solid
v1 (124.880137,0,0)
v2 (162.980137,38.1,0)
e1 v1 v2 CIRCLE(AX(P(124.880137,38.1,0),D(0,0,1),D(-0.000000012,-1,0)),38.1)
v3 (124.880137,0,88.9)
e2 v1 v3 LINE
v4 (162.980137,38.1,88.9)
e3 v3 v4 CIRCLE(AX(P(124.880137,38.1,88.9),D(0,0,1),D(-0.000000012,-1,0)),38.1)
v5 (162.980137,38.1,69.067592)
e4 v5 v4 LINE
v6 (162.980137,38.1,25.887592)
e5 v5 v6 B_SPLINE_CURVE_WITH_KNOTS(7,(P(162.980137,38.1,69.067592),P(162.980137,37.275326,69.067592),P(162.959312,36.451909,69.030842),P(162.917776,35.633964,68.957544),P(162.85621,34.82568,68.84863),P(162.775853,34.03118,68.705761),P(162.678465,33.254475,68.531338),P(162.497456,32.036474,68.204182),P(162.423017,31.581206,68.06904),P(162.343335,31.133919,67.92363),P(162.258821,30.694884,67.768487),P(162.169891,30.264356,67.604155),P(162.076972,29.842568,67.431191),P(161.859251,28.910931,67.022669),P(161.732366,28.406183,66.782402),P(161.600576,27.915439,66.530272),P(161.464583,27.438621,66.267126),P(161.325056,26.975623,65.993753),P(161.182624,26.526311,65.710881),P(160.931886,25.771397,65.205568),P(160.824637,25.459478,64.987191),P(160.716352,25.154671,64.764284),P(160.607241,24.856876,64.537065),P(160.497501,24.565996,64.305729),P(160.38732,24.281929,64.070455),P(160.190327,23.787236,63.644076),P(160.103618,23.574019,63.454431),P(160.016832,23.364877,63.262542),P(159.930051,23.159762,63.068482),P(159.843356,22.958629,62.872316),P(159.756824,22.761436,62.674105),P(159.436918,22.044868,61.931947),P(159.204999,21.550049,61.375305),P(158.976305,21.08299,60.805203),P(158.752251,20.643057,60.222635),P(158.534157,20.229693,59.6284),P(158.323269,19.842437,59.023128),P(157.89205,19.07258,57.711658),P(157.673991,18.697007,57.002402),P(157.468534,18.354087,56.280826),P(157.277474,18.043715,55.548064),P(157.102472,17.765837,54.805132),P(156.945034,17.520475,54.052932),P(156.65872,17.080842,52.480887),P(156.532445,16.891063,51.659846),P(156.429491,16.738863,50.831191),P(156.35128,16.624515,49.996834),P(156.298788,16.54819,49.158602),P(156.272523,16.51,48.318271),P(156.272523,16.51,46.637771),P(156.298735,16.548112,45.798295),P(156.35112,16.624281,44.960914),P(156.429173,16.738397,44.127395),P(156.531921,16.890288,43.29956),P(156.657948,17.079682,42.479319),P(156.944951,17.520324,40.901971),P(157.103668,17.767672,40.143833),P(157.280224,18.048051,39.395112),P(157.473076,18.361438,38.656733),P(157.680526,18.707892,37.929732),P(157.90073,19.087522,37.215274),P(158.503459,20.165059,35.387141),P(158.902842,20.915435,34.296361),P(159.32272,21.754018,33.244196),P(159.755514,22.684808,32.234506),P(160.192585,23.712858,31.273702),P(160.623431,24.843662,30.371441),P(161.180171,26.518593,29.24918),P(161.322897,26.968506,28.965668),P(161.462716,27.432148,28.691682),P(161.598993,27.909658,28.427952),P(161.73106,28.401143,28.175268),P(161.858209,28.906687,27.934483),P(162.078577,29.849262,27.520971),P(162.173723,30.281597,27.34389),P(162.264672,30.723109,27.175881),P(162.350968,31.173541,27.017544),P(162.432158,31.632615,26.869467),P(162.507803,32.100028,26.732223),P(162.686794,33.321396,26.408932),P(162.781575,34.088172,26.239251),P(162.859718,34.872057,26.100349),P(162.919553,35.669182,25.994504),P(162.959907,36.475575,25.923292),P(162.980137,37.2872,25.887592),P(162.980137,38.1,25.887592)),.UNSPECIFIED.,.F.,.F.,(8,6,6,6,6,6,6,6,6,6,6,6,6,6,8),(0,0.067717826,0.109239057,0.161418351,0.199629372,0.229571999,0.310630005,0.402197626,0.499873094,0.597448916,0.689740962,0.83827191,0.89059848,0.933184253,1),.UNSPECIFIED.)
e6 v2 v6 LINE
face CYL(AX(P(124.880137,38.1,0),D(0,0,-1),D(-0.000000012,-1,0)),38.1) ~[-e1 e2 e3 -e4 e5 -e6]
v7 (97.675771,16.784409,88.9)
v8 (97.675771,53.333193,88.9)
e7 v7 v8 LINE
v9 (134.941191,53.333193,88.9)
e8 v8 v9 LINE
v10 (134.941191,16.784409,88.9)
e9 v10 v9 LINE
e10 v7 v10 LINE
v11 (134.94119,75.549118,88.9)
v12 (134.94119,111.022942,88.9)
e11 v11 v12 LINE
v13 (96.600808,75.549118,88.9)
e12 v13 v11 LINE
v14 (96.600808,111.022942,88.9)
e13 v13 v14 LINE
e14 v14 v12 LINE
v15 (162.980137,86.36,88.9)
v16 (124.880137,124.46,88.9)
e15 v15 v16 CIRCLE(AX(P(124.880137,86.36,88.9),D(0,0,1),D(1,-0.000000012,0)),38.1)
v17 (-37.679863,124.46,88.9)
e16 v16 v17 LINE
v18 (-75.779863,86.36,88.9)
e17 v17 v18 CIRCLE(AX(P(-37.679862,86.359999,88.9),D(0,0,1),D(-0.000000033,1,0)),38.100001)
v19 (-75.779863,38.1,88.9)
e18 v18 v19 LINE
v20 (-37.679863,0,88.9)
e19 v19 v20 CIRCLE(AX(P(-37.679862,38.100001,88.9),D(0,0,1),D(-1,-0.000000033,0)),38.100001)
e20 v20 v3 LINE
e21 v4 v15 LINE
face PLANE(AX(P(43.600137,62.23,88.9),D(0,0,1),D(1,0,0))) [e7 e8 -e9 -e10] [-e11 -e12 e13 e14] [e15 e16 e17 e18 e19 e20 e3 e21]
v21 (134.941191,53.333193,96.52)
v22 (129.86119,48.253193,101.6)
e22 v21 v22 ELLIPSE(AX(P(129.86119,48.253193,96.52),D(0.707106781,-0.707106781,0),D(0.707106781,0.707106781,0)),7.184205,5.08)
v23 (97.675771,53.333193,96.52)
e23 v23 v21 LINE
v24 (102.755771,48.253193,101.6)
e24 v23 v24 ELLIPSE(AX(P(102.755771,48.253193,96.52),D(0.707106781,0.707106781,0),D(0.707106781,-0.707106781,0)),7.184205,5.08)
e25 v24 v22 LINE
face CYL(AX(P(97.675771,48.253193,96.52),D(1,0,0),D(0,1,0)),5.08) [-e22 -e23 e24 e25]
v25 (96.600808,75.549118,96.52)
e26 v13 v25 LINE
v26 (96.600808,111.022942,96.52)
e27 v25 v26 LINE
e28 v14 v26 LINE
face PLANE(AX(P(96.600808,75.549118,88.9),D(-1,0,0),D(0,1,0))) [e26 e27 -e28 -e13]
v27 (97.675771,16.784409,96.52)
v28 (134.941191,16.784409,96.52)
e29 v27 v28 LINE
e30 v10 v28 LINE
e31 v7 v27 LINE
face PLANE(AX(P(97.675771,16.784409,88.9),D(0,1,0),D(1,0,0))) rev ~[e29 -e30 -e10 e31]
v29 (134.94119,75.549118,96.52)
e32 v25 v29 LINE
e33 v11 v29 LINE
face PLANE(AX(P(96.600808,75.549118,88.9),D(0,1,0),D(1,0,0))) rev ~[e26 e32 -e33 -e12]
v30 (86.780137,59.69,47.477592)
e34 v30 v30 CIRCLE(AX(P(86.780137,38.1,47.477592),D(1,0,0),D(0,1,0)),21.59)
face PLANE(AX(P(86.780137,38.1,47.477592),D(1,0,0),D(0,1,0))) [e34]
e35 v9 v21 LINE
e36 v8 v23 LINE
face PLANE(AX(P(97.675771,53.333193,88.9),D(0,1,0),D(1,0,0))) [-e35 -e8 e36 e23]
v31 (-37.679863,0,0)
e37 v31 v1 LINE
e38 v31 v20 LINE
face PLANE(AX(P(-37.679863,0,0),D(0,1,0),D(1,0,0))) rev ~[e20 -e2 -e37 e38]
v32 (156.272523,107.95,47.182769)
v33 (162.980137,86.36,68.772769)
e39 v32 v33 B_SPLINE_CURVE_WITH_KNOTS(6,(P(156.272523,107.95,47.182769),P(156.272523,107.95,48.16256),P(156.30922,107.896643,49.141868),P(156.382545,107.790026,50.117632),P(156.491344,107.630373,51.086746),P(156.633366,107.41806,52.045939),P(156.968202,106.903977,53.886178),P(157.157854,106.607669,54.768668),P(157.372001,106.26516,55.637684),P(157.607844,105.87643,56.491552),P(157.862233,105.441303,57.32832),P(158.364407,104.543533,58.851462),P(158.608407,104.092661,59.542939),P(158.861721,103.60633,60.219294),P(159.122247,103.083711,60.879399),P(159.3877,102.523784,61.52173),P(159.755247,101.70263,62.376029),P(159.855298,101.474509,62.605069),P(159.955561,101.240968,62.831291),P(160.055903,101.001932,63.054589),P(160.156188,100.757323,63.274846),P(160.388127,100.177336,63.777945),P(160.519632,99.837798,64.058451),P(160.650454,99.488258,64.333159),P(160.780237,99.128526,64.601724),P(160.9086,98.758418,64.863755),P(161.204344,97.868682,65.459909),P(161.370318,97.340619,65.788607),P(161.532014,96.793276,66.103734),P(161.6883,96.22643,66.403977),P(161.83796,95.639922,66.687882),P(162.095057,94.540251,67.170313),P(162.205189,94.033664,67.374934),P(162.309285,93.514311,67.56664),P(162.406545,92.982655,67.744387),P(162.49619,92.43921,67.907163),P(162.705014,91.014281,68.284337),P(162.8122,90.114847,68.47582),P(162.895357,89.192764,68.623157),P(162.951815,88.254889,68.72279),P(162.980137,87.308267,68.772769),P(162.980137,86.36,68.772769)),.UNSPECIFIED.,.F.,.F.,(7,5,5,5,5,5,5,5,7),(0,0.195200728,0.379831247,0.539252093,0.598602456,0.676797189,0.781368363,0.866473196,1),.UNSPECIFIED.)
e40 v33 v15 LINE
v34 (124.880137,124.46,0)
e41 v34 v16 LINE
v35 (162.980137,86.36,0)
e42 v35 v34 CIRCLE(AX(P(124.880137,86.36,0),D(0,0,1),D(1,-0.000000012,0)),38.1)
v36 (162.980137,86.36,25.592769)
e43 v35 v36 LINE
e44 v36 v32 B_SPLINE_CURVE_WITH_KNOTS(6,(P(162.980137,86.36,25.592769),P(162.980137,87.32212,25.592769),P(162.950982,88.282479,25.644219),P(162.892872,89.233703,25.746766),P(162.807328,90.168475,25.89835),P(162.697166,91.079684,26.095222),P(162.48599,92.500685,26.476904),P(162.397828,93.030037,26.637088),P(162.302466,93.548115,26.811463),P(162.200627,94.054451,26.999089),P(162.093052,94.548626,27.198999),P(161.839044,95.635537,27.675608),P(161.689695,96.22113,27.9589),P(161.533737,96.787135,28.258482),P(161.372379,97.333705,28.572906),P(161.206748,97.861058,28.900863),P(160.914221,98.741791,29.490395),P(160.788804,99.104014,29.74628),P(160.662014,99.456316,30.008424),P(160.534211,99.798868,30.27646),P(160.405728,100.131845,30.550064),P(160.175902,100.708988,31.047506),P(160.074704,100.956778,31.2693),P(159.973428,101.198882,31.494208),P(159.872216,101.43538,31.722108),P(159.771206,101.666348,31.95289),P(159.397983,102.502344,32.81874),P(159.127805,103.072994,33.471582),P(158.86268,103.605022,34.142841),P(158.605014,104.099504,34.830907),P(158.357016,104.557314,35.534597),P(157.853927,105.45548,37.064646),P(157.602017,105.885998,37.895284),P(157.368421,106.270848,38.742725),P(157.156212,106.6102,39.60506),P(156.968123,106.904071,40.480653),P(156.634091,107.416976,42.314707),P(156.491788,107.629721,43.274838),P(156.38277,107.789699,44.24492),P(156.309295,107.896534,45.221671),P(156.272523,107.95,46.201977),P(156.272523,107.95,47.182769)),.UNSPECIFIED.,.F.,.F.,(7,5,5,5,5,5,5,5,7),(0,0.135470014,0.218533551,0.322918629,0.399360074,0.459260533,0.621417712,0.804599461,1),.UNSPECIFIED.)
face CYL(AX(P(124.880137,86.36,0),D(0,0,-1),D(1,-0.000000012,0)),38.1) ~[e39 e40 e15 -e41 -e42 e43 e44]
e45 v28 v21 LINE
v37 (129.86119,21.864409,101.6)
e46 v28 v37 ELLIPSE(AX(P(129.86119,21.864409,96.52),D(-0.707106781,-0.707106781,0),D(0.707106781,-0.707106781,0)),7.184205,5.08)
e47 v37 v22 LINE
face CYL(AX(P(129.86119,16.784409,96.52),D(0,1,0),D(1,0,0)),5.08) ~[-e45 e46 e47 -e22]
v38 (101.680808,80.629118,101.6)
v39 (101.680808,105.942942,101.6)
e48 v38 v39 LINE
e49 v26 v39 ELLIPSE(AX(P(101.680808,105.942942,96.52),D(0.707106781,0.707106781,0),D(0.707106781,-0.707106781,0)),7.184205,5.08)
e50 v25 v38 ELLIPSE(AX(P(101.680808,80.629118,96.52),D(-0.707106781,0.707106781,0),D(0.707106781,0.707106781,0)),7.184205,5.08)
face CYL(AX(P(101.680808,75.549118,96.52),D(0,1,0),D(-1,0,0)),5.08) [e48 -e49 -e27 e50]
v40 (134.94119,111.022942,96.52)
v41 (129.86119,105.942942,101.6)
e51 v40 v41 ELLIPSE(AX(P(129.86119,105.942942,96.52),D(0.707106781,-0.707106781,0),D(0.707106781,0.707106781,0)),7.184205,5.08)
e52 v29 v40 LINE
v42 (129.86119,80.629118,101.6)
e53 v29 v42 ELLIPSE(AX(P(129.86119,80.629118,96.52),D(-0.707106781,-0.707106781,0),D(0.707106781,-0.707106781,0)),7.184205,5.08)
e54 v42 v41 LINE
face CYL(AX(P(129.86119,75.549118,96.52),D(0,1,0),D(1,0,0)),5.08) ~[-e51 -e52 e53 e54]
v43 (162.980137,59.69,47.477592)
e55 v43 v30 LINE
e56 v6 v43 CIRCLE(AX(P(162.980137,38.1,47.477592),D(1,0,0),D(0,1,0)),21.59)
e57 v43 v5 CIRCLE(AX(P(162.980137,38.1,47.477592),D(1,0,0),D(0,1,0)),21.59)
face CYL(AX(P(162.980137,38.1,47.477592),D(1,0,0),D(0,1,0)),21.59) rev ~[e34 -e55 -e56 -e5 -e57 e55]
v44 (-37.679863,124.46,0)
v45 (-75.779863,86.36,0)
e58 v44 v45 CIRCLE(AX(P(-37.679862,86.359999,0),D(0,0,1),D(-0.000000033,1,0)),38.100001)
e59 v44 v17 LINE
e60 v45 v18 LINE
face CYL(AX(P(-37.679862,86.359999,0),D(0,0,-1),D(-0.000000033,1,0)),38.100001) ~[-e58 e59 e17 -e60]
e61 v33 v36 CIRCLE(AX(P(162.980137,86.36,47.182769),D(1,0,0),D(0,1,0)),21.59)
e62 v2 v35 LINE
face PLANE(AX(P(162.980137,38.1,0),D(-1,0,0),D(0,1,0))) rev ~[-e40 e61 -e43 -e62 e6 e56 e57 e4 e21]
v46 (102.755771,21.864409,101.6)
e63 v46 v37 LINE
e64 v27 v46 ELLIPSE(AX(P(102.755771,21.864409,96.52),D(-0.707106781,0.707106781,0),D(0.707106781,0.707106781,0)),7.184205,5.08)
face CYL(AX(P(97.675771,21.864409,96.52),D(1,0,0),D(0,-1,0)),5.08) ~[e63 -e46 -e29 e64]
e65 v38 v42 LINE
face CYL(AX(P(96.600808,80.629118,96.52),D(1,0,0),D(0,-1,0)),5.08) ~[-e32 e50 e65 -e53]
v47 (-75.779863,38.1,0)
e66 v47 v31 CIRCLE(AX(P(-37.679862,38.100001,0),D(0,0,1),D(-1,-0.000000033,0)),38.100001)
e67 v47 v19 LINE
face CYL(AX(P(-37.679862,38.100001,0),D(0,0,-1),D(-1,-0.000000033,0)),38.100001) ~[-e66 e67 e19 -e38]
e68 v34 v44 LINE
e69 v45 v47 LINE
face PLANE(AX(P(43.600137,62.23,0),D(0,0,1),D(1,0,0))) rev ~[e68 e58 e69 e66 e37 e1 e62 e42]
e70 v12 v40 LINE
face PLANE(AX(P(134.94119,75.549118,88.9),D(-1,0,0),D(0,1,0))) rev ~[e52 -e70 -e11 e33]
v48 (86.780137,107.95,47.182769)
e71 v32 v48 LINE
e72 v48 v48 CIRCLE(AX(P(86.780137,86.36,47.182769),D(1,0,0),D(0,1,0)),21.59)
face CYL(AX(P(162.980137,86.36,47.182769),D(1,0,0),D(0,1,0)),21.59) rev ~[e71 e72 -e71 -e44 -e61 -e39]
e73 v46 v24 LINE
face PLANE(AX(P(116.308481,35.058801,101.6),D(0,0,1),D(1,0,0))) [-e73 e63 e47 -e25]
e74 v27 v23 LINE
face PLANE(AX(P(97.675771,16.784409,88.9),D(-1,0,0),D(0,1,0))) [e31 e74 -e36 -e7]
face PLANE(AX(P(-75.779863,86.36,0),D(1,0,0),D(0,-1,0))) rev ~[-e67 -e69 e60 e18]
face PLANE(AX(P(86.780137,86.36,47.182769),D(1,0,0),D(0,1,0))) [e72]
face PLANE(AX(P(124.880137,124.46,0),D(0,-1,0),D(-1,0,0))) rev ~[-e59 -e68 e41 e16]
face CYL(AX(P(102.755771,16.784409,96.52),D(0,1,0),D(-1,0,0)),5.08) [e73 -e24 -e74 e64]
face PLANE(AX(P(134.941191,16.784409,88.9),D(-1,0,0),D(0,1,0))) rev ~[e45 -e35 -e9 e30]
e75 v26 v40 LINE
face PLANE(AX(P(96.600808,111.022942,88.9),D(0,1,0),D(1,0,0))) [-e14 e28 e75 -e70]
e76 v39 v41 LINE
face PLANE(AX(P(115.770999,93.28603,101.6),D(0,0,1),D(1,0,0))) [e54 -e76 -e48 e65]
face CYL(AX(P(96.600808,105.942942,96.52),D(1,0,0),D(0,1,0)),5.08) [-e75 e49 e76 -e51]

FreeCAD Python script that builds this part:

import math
import FreeCAD as App
import Part
import Sketcher
from FreeCAD import Vector
Q = App.Units.Quantity


def edges_at(feature, points):
    """Names of the edges that pass closest to the given points."""
    edges = feature.Shape.Edges
    near = lambda p: min(range(len(edges)), key=lambda i: edges[i].distToShape(Part.Vertex(*p))[0])
    return sorted({f"Edge{near(p) + 1}" for p in points})

doc = App.newDocument("Part")
body = doc.addObject("PartDesign::Body", "Body")

sketch1 = body.newObject("Sketcher::SketchObject", "Sketch")
sketch1.AttachmentSupport = (doc.getObject("XY_Plane"), [""])
sketch1.MapMode = "FlatFace"
sketch1.addGeometry(Part.ArcOfCircle(Part.Circle(Vector(-38, 38, 0), Vector(0, 0, 1), 38), math.radians(-180), math.radians(-90)), False)
sketch1.addGeometry(Part.LineSegment(Vector(-38, 0, 0), Vector(125, 0, 0)), False)
sketch1.addGeometry(Part.ArcOfCircle(Part.Circle(Vector(125, 38, 0), Vector(0, 0, 1), 38), math.radians(-90), math.radians(0)), False)
sketch1.addGeometry(Part.LineSegment(Vector(163, 38, 0), Vector(163, 86, 0)), False)
sketch1.addGeometry(Part.ArcOfCircle(Part.Circle(Vector(125, 86, 0), Vector(0, 0, 1), 38), math.radians(0), math.radians(90)), False)
sketch1.addGeometry(Part.LineSegment(Vector(125, 124, 0), Vector(-38, 124, 0)), False)
sketch1.addGeometry(Part.ArcOfCircle(Part.Circle(Vector(-38, 86, 0), Vector(0, 0, 1), 38), math.radians(90), math.radians(180)), False)
sketch1.addGeometry(Part.LineSegment(Vector(-76, 86, 0), Vector(-76, 38, 0)), False)
sketch1.addConstraint(Sketcher.Constraint("Tangent", 0, 2, 1, 1))
sketch1.addConstraint(Sketcher.Constraint("Tangent", 1, 2, 2, 1))
sketch1.addConstraint(Sketcher.Constraint("Tangent", 2, 2, 3, 1))
sketch1.addConstraint(Sketcher.Constraint("Tangent", 3, 2, 4, 1))
sketch1.addConstraint(Sketcher.Constraint("Tangent", 4, 2, 5, 1))
sketch1.addConstraint(Sketcher.Constraint("Tangent", 5, 2, 6, 1))
sketch1.addConstraint(Sketcher.Constraint("Tangent", 6, 2, 7, 1))
sketch1.addConstraint(Sketcher.Constraint("Tangent", 7, 2, 0, 1))
sketch1.addConstraint(Sketcher.Constraint("Horizontal", 1))
sketch1.addConstraint(Sketcher.Constraint("Vertical", 3))
sketch1.addConstraint(Sketcher.Constraint("Horizontal", 5))
sketch1.addConstraint(Sketcher.Constraint("Vertical", 7))
sketch1.addConstraint(Sketcher.Constraint("Equal", 0, 2))
sketch1.addConstraint(Sketcher.Constraint("Equal", 2, 4))
sketch1.addConstraint(Sketcher.Constraint("Equal", 4, 6))
sketch1.addConstraint(Sketcher.Constraint("PointOnObject", 0, 2, -1))
sketch1.addConstraint(Sketcher.Constraint("Radius", 0, Q("1.5 in")))
sketch1.addConstraint(Sketcher.Constraint("DistanceX", 1, 1, 1, 2, Q("6.4 in")))
sketch1.addConstraint(Sketcher.Constraint("DistanceY", 3, 1, 3, 2, Q("1.9 in")))
sketch1.addConstraint(Sketcher.Constraint("DistanceX", 0, 3, -1, 1, Q("37.679862 mm")))
pad1 = body.newObject("PartDesign::Pad", "Pad")
pad1.Profile = sketch1
pad1.Length = Q("3.5 in")

sketch2 = body.newObject("Sketcher::SketchObject", "Sketch001")
sketch2.AttachmentSupport = (doc.getObject("YZ_Plane"), [""])
sketch2.MapMode = "FlatFace"
sketch2.AttachmentOffset = App.Placement(Vector(0, 0, 162.980137), App.Rotation())
sketch2.addGeometry(Part.Circle(Vector(38, 47, 0), Vector(0, 0, 1), 22), False)
sketch2.addGeometry(Part.Circle(Vector(86, 47, 0), Vector(0, 0, 1), 22), False)
sketch2.addConstraint(Sketcher.Constraint("Equal", 0, 1))
sketch2.addConstraint(Sketcher.Constraint("Diameter", 0, Q("1.7 in")))
sketch2.addConstraint(Sketcher.Constraint("DistanceX", -1, 1, 0, 3, Q("1.5 in")))
sketch2.addConstraint(Sketcher.Constraint("DistanceX", -1, 1, 1, 3, Q("3.4 in")))
sketch2.addConstraint(Sketcher.Constraint("DistanceY", -1, 1, 1, 3, Q("47.182769 mm")))
sketch2.addConstraint(Sketcher.Constraint("DistanceY", -1, 1, 0, 3, Q("47.477592 mm")))
pocket1 = body.newObject("PartDesign::Pocket", "Pocket")
pocket1.Profile = sketch2
pocket1.Length = Q("3 in")

sketch3 = body.newObject("Sketcher::SketchObject", "Sketch002")
sketch3.AttachmentSupport = (doc.getObject("XY_Plane"), [""])
sketch3.MapMode = "FlatFace"
sketch3.AttachmentOffset = App.Placement(Vector(0, 0, 3.5 * 25.4), App.Rotation())
sketch3.addGeometry(Part.LineSegment(Vector(97, 111, 0), Vector(97, 76, 0)), False)
sketch3.addGeometry(Part.LineSegment(Vector(97, 76, 0), Vector(135, 76, 0)), False)
sketch3.addGeometry(Part.LineSegment(Vector(135, 76, 0), Vector(135, 111, 0)), False)
sketch3.addGeometry(Part.LineSegment(Vector(135, 111, 0), Vector(97, 111, 0)), False)
sketch3.addGeometry(Part.LineSegment(Vector(98, 53, 0), Vector(98, 17, 0)), False)
sketch3.addGeometry(Part.LineSegment(Vector(98, 17, 0), Vector(135, 17, 0)), False)
sketch3.addGeometry(Part.LineSegment(Vector(135, 17, 0), Vector(135, 53, 0)), False)
sketch3.addGeometry(Part.LineSegment(Vector(135, 53, 0), Vector(98, 53, 0)), False)
sketch3.addConstraint(Sketcher.Constraint("Coincident", 0, 2, 1, 1))
sketch3.addConstraint(Sketcher.Constraint("Coincident", 1, 2, 2, 1))
sketch3.addConstraint(Sketcher.Constraint("Coincident", 2, 2, 3, 1))
sketch3.addConstraint(Sketcher.Constraint("Coincident", 3, 2, 0, 1))
sketch3.addConstraint(Sketcher.Constraint("Coincident", 4, 2, 5, 1))
sketch3.addConstraint(Sketcher.Constraint("Coincident", 5, 2, 6, 1))
sketch3.addConstraint(Sketcher.Constraint("Coincident", 6, 2, 7, 1))
sketch3.addConstraint(Sketcher.Constraint("Coincident", 7, 2, 4, 1))
sketch3.addConstraint(Sketcher.Constraint("Vertical", 0))
sketch3.addConstraint(Sketcher.Constraint("Horizontal", 1))
sketch3.addConstraint(Sketcher.Constraint("Vertical", 2))
sketch3.addConstraint(Sketcher.Constraint("Horizontal", 3))
sketch3.addConstraint(Sketcher.Constraint("Vertical", 4))
sketch3.addConstraint(Sketcher.Constraint("Horizontal", 5))
sketch3.addConstraint(Sketcher.Constraint("Vertical", 6))
sketch3.addConstraint(Sketcher.Constraint("Horizontal", 7))
sketch3.addConstraint(Sketcher.Constraint("Vertical", 2, 2, 5, 2))
sketch3.addConstraint(Sketcher.Constraint("DistanceX", 5, 1, 5, 2, Q("37.265419 mm")))
sketch3.addConstraint(Sketcher.Constraint("DistanceX", 1, 1, 1, 2, Q("38.340382 mm")))
sketch3.addConstraint(Sketcher.Constraint("DistanceY", 0, 2, 0, 1, Q("35.473824 mm")))
sketch3.addConstraint(Sketcher.Constraint("DistanceY", 4, 2, 4, 1, Q("36.548784 mm")))
sketch3.addConstraint(Sketcher.Constraint("DistanceX", -1, 1, 0, 2, Q("96.600808 mm")))
sketch3.addConstraint(Sketcher.Constraint("DistanceY", -1, 1, 0, 2, Q("75.549118 mm")))
sketch3.addConstraint(Sketcher.Constraint("DistanceY", -1, 1, 4, 2, Q("16.784409 mm")))
pad2 = body.newObject("PartDesign::Pad", "Pad001")
pad2.Profile = sketch3
pad2.Length = Q("0.5 in")
doc.recompute()

fillet = body.newObject("PartDesign::Fillet", "Fillet")
fillet.Base = (pad2, edges_at(pad2, [
    (115.771, 111.023, 101.6),
    (96.601, 93.286, 101.6),
    (115.771, 75.549, 101.6),
    (134.941, 93.286, 101.6),
    (116.308, 53.333, 101.6),
    (97.676, 35.059, 101.6),
    (116.308, 16.784, 101.6),
    (134.941, 35.059, 101.6),
]))
fillet.Radius = Q("0.2 in")

doc.recompute()
